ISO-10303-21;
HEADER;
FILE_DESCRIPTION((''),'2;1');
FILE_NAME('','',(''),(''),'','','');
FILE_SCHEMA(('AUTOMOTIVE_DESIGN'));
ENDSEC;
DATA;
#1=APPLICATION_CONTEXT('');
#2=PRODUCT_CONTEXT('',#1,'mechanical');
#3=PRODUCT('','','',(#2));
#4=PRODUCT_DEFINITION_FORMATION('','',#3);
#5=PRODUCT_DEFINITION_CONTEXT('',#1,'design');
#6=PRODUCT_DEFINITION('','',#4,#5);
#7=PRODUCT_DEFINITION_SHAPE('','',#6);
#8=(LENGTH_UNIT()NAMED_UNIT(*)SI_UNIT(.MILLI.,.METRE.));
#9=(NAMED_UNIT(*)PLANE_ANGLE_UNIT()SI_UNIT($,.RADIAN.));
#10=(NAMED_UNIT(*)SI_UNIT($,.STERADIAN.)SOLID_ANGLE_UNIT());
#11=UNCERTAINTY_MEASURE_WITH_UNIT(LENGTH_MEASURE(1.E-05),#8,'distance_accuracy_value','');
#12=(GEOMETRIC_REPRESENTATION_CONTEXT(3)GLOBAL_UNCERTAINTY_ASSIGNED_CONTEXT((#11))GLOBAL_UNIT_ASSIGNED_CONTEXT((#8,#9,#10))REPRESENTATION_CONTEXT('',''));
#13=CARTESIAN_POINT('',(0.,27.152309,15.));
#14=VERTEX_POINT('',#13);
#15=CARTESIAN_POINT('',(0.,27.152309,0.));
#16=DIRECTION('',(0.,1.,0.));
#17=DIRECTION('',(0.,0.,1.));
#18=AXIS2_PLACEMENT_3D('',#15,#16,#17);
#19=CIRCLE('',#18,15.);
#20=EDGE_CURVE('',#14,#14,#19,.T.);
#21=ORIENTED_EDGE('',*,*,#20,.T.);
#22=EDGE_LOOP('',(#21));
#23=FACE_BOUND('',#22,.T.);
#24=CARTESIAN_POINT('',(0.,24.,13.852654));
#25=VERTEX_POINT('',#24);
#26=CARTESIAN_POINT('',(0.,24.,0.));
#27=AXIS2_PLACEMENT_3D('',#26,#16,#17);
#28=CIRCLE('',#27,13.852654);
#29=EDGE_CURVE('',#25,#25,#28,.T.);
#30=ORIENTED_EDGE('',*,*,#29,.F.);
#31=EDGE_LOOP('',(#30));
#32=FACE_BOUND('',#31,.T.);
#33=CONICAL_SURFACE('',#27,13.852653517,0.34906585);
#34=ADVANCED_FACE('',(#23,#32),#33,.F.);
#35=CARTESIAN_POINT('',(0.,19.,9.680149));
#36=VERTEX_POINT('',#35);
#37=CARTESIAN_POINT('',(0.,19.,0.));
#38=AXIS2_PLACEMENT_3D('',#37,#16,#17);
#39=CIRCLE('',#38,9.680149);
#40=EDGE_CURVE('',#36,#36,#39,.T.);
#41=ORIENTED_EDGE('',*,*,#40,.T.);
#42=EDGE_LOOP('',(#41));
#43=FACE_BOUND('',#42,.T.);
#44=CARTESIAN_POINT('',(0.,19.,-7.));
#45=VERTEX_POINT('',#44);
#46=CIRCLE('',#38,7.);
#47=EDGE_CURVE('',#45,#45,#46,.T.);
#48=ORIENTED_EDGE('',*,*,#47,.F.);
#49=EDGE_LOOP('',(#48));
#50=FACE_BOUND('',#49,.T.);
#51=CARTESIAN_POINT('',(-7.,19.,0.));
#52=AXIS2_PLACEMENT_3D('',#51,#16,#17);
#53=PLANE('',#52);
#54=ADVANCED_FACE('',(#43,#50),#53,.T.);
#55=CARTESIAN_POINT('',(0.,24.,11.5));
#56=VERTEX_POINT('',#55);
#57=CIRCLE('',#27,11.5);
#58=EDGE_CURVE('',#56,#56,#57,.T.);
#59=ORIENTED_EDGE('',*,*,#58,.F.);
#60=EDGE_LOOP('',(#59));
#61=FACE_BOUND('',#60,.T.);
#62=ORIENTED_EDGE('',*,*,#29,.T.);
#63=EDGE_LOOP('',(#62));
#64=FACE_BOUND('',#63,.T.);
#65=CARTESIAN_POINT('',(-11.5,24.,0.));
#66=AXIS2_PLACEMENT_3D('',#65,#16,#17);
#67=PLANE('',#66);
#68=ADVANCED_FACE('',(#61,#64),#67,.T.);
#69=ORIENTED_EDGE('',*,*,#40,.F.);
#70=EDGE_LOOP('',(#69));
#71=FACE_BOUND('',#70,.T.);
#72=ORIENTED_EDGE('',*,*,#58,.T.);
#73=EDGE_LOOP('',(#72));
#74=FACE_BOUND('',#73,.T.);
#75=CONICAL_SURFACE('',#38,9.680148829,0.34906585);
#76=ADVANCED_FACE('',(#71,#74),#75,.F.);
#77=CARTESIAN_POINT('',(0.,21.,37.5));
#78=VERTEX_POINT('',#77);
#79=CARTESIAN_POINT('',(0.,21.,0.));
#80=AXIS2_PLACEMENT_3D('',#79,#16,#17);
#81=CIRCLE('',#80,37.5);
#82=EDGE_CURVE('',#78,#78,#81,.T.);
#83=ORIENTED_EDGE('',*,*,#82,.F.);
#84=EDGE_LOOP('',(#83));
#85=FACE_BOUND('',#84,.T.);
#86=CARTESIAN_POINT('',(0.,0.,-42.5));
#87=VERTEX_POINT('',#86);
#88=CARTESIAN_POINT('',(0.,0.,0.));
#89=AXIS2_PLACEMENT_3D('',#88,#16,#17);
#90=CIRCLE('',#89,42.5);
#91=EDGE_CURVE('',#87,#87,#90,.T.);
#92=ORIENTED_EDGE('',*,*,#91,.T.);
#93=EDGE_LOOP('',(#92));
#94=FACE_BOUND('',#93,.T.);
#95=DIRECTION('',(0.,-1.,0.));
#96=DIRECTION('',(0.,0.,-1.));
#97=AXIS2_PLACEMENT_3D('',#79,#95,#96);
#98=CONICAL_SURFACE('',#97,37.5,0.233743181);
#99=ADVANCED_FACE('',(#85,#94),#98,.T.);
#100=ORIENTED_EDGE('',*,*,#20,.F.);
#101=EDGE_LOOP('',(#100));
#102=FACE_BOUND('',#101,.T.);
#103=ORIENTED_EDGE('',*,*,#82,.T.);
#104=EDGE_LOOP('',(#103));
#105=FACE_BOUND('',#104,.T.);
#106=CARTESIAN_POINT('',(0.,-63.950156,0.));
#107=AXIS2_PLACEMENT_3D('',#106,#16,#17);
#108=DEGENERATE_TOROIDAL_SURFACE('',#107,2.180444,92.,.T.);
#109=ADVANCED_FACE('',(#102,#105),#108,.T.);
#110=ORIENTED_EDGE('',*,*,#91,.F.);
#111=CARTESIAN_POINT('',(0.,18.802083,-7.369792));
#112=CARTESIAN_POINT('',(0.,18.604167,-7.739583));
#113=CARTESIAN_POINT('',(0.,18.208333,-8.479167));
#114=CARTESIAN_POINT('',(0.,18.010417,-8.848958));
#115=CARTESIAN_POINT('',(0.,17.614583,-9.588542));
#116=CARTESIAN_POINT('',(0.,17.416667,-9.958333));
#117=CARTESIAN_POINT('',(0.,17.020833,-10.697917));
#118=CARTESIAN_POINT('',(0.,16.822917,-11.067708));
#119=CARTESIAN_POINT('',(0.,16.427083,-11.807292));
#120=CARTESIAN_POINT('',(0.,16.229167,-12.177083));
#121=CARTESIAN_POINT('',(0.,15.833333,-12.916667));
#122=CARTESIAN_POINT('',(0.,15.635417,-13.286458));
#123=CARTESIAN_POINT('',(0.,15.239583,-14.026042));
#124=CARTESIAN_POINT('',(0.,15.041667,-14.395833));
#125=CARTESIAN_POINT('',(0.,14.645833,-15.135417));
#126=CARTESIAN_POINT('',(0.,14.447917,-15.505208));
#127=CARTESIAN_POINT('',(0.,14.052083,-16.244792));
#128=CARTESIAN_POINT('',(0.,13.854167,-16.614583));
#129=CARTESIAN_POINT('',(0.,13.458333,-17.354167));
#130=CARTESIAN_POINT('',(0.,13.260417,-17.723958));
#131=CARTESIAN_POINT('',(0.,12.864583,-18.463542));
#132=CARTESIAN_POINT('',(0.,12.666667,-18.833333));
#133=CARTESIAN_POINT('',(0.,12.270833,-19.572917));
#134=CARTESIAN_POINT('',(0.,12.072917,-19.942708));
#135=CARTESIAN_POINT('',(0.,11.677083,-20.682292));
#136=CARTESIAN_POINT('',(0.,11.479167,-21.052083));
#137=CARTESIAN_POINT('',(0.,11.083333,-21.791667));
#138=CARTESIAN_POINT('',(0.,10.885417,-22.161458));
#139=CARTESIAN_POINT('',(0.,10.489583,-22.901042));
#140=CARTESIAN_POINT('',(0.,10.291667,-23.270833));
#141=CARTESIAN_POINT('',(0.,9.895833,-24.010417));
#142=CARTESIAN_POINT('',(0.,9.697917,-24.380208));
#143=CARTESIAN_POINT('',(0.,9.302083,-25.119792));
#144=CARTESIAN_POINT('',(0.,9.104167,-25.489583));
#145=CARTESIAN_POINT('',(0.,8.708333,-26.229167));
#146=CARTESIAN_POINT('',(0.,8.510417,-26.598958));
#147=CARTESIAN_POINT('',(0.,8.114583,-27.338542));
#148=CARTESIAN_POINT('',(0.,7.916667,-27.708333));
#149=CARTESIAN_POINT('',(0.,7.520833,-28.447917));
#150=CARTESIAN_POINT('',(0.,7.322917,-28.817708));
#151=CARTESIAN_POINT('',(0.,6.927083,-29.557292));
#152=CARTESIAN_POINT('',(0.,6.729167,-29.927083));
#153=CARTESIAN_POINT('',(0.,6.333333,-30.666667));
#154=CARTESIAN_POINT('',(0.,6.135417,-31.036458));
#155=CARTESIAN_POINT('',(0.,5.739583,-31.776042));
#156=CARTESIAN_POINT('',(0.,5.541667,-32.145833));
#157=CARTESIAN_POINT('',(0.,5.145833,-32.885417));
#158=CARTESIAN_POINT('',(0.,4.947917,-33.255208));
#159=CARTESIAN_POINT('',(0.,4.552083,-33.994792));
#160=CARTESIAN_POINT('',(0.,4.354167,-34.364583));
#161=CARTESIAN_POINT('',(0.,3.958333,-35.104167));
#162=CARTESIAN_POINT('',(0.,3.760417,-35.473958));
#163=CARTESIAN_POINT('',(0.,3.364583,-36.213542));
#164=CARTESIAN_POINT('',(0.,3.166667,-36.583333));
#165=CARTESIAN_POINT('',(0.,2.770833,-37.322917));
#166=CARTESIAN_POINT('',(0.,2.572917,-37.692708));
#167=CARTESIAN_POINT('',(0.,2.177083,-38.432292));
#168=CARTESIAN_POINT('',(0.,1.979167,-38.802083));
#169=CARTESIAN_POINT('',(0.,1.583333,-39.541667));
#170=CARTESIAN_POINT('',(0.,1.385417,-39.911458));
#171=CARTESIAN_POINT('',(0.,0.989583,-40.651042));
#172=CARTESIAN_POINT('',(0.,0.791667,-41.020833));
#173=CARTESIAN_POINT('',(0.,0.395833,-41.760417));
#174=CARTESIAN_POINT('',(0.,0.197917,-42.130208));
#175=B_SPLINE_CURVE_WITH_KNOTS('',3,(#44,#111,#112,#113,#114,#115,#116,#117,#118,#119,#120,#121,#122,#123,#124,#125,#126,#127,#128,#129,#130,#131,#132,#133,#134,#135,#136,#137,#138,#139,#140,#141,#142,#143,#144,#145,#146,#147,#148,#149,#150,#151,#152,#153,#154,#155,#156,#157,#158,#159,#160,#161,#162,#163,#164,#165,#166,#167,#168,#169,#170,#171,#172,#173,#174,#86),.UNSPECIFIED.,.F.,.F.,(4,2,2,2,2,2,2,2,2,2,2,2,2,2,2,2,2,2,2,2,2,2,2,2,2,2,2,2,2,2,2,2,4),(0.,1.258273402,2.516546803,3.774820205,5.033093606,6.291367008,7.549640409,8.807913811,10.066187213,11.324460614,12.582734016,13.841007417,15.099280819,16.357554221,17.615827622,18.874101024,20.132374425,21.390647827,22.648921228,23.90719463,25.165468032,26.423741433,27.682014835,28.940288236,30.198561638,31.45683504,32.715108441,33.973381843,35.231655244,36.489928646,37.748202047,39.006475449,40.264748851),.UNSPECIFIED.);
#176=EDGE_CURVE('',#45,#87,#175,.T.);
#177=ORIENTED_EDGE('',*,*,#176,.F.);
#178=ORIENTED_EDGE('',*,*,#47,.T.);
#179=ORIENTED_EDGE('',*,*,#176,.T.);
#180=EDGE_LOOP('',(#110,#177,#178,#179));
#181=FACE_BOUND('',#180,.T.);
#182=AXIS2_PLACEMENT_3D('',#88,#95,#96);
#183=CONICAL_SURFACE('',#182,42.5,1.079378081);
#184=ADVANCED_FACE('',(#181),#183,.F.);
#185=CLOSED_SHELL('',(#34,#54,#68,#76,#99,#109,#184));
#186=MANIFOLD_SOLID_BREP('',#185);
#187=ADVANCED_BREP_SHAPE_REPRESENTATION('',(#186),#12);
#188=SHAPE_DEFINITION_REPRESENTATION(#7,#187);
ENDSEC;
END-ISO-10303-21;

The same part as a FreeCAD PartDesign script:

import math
import FreeCAD as App
import Part
import Sketcher
from FreeCAD import Vector
Q = App.Units.Quantity

doc = App.newDocument("Part")
body = doc.addObject("PartDesign::Body", "Body")

# Sketch on XY plane
sketch1 = doc.addObject("Sketcher::SketchObject", "Sketch")
body.addObject(sketch1)
sketch1.AttachmentSupport = (doc.XY_Plane, [""])
sketch1.MapMode = "FlatFace"
sketch1.addGeometry(Part.LineSegment(Vector(-7, 19, 0), Vector(-9.7, 19, 0)), False)
sketch1.addGeometry(Part.LineSegment(Vector(-9.7, 19, 0), Vector(-11.5, 24, 0)), False)
sketch1.addGeometry(Part.LineSegment(Vector(-11.5, 24, 0), Vector(-13.9, 24, 0)), False)
sketch1.addGeometry(Part.LineSegment(Vector(-13.9, 24, 0), Vector(-15, 27.2, 0)), False)
sketch1.addGeometry(Part.ArcOfCircle(Part.Circle(Vector(-2.2, -64, 0), Vector(0, 0, 1), 92), math.radians(98.01), math.radians(112.58)), False)
sketch1.addGeometry(Part.LineSegment(Vector(-37.5, 21, 0), Vector(-42.5, 0, 0)), False)
sketch1.addGeometry(Part.LineSegment(Vector(-42.5, 0, 0), Vector(-7, 19, 0)), False)
sketch1.addConstraint(Sketcher.Constraint("Coincident", 0, 2, 1, 1))
sketch1.addConstraint(Sketcher.Constraint("Coincident", 1, 2, 2, 1))
sketch1.addConstraint(Sketcher.Constraint("Coincident", 2, 2, 3, 1))
sketch1.addConstraint(Sketcher.Constraint("Coincident", 3, 2, 4, 1))
sketch1.addConstraint(Sketcher.Constraint("Coincident", 4, 2, 5, 1))
sketch1.addConstraint(Sketcher.Constraint("Coincident", 5, 2, 6, 1))
sketch1.addConstraint(Sketcher.Constraint("Coincident", 6, 2, 0, 1))
sketch1.addConstraint(Sketcher.Constraint("Horizontal", 0))
sketch1.addConstraint(Sketcher.Constraint("Horizontal", 2))
sketch1.addConstraint(Sketcher.Constraint("PointOnObject", 5, 2, -1))
sketch1.addConstraint(Sketcher.Constraint("Parallel", 1, 3))
sketch1.addConstraint(Sketcher.Constraint("Radius", 4, 92.0))
sketch1.addConstraint(Sketcher.Constraint("Angle", 1, Q("110 deg")))
sketch1.addConstraint(Sketcher.Constraint("DistanceY", -1, 1, 0, 2, 19.0))
sketch1.addConstraint(Sketcher.Constraint("DistanceY", -1, 1, 1, 2, 24.0))
sketch1.addConstraint(Sketcher.Constraint("DistanceX", 3, 2, -1, 1, 15.0))
sketch1.addConstraint(Sketcher.Constraint("DistanceY", -1, 1, 4, 2, 21.0))
sketch1.addConstraint(Sketcher.Constraint("DistanceX", 6, 2, -1, 1, 7.0))
sketch1.addConstraint(Sketcher.Constraint("DistanceX", 4, 2, 1, 2, 26.0))
sketch1.addConstraint(Sketcher.Constraint("DistanceX", 5, 2, 4, 2, 5.0))
sketch1.addConstraint(Sketcher.Constraint("DistanceX", 1, 2, -1, 1, 11.5))
sketch1.addConstraint(Sketcher.Constraint("DistanceX", 2, 2, 2, 1, 2.352654))
revolution = doc.addObject("PartDesign::Revolution", "Revolution")
body.addObject(revolution)
revolution.Profile = sketch1
revolution.ReferenceAxis = (sketch1, ["V_Axis"])
revolution.Angle = 360

doc.recompute()
